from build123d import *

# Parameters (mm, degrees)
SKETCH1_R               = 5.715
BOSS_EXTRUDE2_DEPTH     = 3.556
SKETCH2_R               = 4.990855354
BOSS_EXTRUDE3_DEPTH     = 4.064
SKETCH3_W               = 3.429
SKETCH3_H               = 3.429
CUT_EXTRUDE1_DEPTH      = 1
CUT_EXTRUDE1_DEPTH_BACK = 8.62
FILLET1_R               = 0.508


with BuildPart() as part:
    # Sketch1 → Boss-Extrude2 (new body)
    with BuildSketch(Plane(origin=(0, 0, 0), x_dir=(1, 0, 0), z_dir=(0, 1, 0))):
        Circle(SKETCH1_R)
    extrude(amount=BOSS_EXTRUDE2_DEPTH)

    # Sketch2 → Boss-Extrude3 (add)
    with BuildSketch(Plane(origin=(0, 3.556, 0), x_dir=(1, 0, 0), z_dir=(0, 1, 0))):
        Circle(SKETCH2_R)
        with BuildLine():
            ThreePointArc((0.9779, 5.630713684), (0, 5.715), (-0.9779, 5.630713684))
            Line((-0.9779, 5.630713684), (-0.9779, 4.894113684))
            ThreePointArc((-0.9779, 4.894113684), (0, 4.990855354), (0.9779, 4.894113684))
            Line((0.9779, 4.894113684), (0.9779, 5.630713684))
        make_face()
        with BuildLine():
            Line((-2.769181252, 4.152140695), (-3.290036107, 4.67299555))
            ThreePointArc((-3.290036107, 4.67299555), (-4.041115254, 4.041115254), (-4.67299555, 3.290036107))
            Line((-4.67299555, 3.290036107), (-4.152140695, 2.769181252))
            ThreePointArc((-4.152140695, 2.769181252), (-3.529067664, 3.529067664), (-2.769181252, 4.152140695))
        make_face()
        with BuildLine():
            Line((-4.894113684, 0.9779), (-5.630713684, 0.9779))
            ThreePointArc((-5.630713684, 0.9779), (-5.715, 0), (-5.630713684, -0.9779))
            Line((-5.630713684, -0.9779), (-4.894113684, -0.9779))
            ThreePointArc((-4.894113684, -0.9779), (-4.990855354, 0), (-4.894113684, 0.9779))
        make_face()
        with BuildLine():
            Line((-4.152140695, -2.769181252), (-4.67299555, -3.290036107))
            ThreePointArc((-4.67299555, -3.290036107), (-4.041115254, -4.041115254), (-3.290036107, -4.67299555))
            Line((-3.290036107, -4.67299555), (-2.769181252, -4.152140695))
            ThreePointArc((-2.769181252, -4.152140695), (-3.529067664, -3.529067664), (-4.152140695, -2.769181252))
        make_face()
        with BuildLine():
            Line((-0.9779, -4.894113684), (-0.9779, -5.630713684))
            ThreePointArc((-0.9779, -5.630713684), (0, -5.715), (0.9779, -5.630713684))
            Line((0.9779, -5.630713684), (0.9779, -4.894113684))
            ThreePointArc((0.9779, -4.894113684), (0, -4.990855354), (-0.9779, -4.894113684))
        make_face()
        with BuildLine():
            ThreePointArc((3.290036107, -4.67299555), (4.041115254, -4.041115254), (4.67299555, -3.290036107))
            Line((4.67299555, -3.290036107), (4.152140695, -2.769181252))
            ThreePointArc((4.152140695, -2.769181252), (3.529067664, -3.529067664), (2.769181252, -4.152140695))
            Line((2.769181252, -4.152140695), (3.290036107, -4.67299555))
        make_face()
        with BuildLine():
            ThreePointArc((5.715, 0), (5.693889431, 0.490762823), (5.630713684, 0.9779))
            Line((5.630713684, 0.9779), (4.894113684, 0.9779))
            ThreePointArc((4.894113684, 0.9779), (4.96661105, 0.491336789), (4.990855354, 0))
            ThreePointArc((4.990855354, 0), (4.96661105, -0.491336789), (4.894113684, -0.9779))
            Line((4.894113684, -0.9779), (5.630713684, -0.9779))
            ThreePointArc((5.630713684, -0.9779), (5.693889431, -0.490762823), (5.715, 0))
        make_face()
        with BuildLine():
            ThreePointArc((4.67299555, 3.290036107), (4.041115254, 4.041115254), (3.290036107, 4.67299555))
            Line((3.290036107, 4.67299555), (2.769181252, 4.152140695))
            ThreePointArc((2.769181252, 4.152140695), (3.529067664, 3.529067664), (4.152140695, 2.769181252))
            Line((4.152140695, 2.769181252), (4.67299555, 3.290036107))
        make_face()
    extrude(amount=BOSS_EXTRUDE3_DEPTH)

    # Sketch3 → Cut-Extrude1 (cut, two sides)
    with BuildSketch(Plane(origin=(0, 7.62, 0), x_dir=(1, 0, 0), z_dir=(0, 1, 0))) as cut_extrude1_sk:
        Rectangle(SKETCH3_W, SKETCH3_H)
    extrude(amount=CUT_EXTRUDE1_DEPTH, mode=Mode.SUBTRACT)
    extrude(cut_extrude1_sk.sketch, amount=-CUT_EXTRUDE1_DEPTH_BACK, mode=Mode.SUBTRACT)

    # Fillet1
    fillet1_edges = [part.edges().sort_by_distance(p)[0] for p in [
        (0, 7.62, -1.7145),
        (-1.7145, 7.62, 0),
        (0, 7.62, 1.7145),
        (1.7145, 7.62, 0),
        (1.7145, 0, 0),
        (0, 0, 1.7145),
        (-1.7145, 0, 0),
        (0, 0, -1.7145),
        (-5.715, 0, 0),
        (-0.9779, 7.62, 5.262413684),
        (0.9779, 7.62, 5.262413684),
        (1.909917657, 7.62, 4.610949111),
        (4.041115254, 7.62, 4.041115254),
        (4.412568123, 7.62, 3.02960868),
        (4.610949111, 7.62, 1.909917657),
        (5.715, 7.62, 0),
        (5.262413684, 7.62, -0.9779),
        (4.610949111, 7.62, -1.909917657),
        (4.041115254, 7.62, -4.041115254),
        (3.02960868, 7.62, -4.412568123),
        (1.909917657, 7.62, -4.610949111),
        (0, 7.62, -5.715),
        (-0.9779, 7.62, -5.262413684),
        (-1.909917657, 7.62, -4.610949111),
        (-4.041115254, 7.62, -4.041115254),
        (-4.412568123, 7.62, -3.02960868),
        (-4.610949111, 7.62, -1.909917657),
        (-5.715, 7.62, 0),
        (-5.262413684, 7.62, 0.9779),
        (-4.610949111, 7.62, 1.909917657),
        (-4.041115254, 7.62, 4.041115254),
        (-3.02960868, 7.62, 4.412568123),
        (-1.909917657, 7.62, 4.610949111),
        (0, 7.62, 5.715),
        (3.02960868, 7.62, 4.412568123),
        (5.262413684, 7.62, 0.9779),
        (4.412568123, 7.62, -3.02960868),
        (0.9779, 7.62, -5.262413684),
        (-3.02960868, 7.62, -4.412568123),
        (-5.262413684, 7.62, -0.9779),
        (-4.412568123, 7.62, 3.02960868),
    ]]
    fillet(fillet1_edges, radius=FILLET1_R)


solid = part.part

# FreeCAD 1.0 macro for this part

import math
import FreeCAD as App
import Part
import Sketcher
from FreeCAD import Vector
Q = App.Units.Quantity


def edges_at(feature, points):
    """Names of the edges that pass closest to the given points."""
    edges = feature.Shape.Edges
    near = lambda p: min(range(len(edges)), key=lambda i: edges[i].distToShape(Part.Vertex(*p))[0])
    return sorted({f"Edge{near(p) + 1}" for p in points})

doc = App.newDocument("Part")
body = doc.addObject("PartDesign::Body", "Body")

sketch1 = doc.addObject("Sketcher::SketchObject", "Sketch")
body.addObject(sketch1)
sketch1.AttachmentSupport = (doc.XZ_Plane, [""])
sketch1.MapMode = "FlatFace"
sketch1.addGeometry(Part.Circle(Vector(0, 0, 0), Vector(0, 0, 1), 6), False)
sketch1.addConstraint([
    Sketcher.Constraint("Coincident", 0, 3, -1, 1),
    Sketcher.Constraint("Diameter", 0, Q("0.45 in")),
])
pad1 = doc.addObject("PartDesign::Pad", "Pad")
body.addObject(pad1)
pad1.Profile = sketch1
pad1.Length = Q("0.14 in")
pad1.Reversed = True

sketch2 = doc.addObject("Sketcher::SketchObject", "Sketch001")
body.addObject(sketch2)
sketch2.AttachmentSupport = (doc.XZ_Plane, [""])
sketch2.MapMode = "FlatFace"
sketch2.AttachmentOffset = App.Placement(Vector(0, 0, -0.14 * 25.4), App.Rotation())
sketch2.addGeometry([
    Part.LineSegment(Vector(1, -4.9, 0), Vector(1, -5.6, 0)),
    Part.ArcOfCircle(Part.Circle(Vector(0, 0, 0), Vector(0, 0, 1), 5.7), math.radians(-99.85), math.radians(-80.15)),
    Part.LineSegment(Vector(-1, -5.6, 0), Vector(-1, -4.9, 0)),
    Part.ArcOfCircle(Part.Circle(Vector(0, 0, 0), Vector(0, 0, 1), 5), math.radians(-124), math.radians(-101)),
    Part.LineSegment(Vector(-2.8, -4.2, 0), Vector(-3.3, -4.7, 0)),
    Part.ArcOfCircle(Part.Circle(Vector(0, 0, 0), Vector(0, 0, 1), 5.7), math.radians(-144.85), math.radians(-125.15)),
    Part.LineSegment(Vector(-4.7, -3.3, 0), Vector(-4.2, -2.8, 0)),
    Part.ArcOfCircle(Part.Circle(Vector(0, 0, 0), Vector(0, 0, 1), 5), math.radians(-169), math.radians(-146)),
    Part.LineSegment(Vector(-4.9, -1, 0), Vector(-5.6, -1, 0)),
    Part.ArcOfCircle(Part.Circle(Vector(0, 0, 0), Vector(0, 0, 1), 5.7), math.radians(170.15), math.radians(189.85)),
    Part.LineSegment(Vector(-5.6, 1, 0), Vector(-4.9, 1, 0)),
    Part.ArcOfCircle(Part.Circle(Vector(0, 0, 0), Vector(0, 0, 1), 5), math.radians(146), math.radians(169)),
    Part.LineSegment(Vector(-4.2, 2.8, 0), Vector(-4.7, 3.3, 0)),
    Part.ArcOfCircle(Part.Circle(Vector(0, 0, 0), Vector(0, 0, 1), 5.7), math.radians(125.15), math.radians(144.85)),
    Part.LineSegment(Vector(-3.3, 4.7, 0), Vector(-2.8, 4.2, 0)),
    Part.ArcOfCircle(Part.Circle(Vector(0, 0, 0), Vector(0, 0, 1), 5), math.radians(101), math.radians(124)),
    Part.LineSegment(Vector(-1, 4.9, 0), Vector(-1, 5.6, 0)),
    Part.ArcOfCircle(Part.Circle(Vector(0, 0, 0), Vector(0, 0, 1), 5.7), math.radians(80.15), math.radians(99.85)),
    Part.LineSegment(Vector(1, 5.6, 0), Vector(1, 4.9, 0)),
    Part.ArcOfCircle(Part.Circle(Vector(0, 0, 0), Vector(0, 0, 1), 5), math.radians(56), math.radians(79)),
    Part.LineSegment(Vector(2.8, 4.2, 0), Vector(3.3, 4.7, 0)),
    Part.ArcOfCircle(Part.Circle(Vector(0, 0, 0), Vector(0, 0, 1), 5.7), math.radians(35.15), math.radians(54.85)),
    Part.LineSegment(Vector(4.7, 3.3, 0), Vector(4.2, 2.8, 0)),
    Part.ArcOfCircle(Part.Circle(Vector(0, 0, 0), Vector(0, 0, 1), 5), math.radians(11), math.radians(34)),
    Part.LineSegment(Vector(4.9, 1, 0), Vector(5.6, 1, 0)),
    Part.ArcOfCircle(Part.Circle(Vector(0, 0, 0), Vector(0, 0, 1), 5.7), math.radians(0), math.radians(9.85)),
    Part.ArcOfCircle(Part.Circle(Vector(0, 0, 0), Vector(0, 0, 1), 5.7), math.radians(-9.85), math.radians(0)),
    Part.LineSegment(Vector(5.6, -1, 0), Vector(4.9, -1, 0)),
    Part.ArcOfCircle(Part.Circle(Vector(0, 0, 0), Vector(0, 0, 1), 5), math.radians(-34), math.radians(-11)),
    Part.LineSegment(Vector(4.2, -2.8, 0), Vector(4.7, -3.3, 0)),
    Part.ArcOfCircle(Part.Circle(Vector(0, 0, 0), Vector(0, 0, 1), 5.7), math.radians(-54.85), math.radians(-35.15)),
    Part.LineSegment(Vector(3.3, -4.7, 0), Vector(2.8, -4.2, 0)),
    Part.ArcOfCircle(Part.Circle(Vector(0, 0, 0), Vector(0, 0, 1), 5), math.radians(-79), math.radians(-56)),
], False)
sketch2.addConstraint([
    Sketcher.Constraint("Coincident", 0, 2, 1, 2),
    Sketcher.Constraint("Coincident", 1, 1, 2, 1),
    Sketcher.Constraint("Coincident", 2, 2, 3, 2),
    Sketcher.Constraint("Coincident", 3, 1, 4, 1),
    Sketcher.Constraint("Coincident", 4, 2, 5, 2),
    Sketcher.Constraint("Coincident", 5, 1, 6, 1),
    Sketcher.Constraint("Coincident", 6, 2, 7, 2),
    Sketcher.Constraint("Coincident", 7, 1, 8, 1),
    Sketcher.Constraint("Coincident", 8, 2, 9, 2),
    Sketcher.Constraint("Coincident", 9, 1, 10, 1),
    Sketcher.Constraint("Coincident", 10, 2, 11, 2),
    Sketcher.Constraint("Coincident", 11, 1, 12, 1),
    Sketcher.Constraint("Coincident", 12, 2, 13, 2),
    Sketcher.Constraint("Coincident", 13, 1, 14, 1),
    Sketcher.Constraint("Coincident", 14, 2, 15, 2),
    Sketcher.Constraint("Coincident", 15, 1, 16, 1),
    Sketcher.Constraint("Coincident", 16, 2, 17, 2),
    Sketcher.Constraint("Coincident", 17, 1, 18, 1),
    Sketcher.Constraint("Coincident", 18, 2, 19, 2),
    Sketcher.Constraint("Coincident", 19, 1, 20, 1),
    Sketcher.Constraint("Coincident", 20, 2, 21, 2),
    Sketcher.Constraint("Coincident", 21, 1, 22, 1),
    Sketcher.Constraint("Coincident", 22, 2, 23, 2),
    Sketcher.Constraint("Coincident", 23, 1, 24, 1),
    Sketcher.Constraint("Coincident", 24, 2, 25, 2),
    Sketcher.Constraint("Tangent", 25, 1, 26, 2),
    Sketcher.Constraint("Coincident", 26, 1, 27, 1),
    Sketcher.Constraint("Coincident", 27, 2, 28, 2),
    Sketcher.Constraint("Coincident", 28, 1, 29, 1),
    Sketcher.Constraint("Coincident", 29, 2, 30, 2),
    Sketcher.Constraint("Coincident", 30, 1, 31, 1),
    Sketcher.Constraint("Coincident", 31, 2, 32, 2),
    Sketcher.Constraint("Coincident", 32, 1, 0, 1),
    Sketcher.Constraint("Vertical", 0),
    Sketcher.Constraint("Vertical", 2),
    Sketcher.Constraint("Horizontal", 8),
    Sketcher.Constraint("Horizontal", 10),
    Sketcher.Constraint("Vertical", 16),
    Sketcher.Constraint("Vertical", 18),
    Sketcher.Constraint("Horizontal", 24),
    Sketcher.Constraint("Horizontal", 27),
    Sketcher.Constraint("Coincident", 1, 3, -1, 1),
    Sketcher.Constraint("Coincident", 3, 3, -1, 1),
    Sketcher.Constraint("Coincident", 5, 3, -1, 1),
    Sketcher.Constraint("Coincident", 7, 3, -1, 1),
    Sketcher.Constraint("Coincident", 9, 3, -1, 1),
    Sketcher.Constraint("Coincident", 11, 3, -1, 1),
    Sketcher.Constraint("Coincident", 13, 3, -1, 1),
    Sketcher.Constraint("Coincident", 15, 3, -1, 1),
    Sketcher.Constraint("Coincident", 17, 3, -1, 1),
    Sketcher.Constraint("Coincident", 19, 3, -1, 1),
    Sketcher.Constraint("Coincident", 21, 3, -1, 1),
    Sketcher.Constraint("Coincident", 23, 3, -1, 1),
    Sketcher.Constraint("Coincident", 25, 3, -1, 1),
    Sketcher.Constraint("Coincident", 28, 3, -1, 1),
    Sketcher.Constraint("Coincident", 30, 3, -1, 1),
    Sketcher.Constraint("Coincident", 32, 3, -1, 1),
    Sketcher.Constraint("Equal", 1, 5),
    Sketcher.Constraint("Equal", 3, 7),
    Sketcher.Constraint("Equal", 5, 9),
    Sketcher.Constraint("Equal", 7, 11),
    Sketcher.Constraint("Equal", 9, 13),
    Sketcher.Constraint("Equal", 11, 15),
    Sketcher.Constraint("Equal", 13, 17),
    Sketcher.Constraint("Equal", 15, 19),
    Sketcher.Constraint("Equal", 17, 21),
    Sketcher.Constraint("Equal", 19, 23),
    Sketcher.Constraint("Equal", 21, 25),
    Sketcher.Constraint("Equal", 25, 26),
    Sketcher.Constraint("Equal", 23, 28),
    Sketcher.Constraint("Equal", 26, 30),
    Sketcher.Constraint("Equal", 28, 32),
    Sketcher.Constraint("PointOnObject", 25, 1, -1),
    Sketcher.Constraint("Parallel", 4, 6),
    Sketcher.Constraint("Perpendicular", 6, 12),
    Sketcher.Constraint("Parallel", 12, 14),
    Sketcher.Constraint("Perpendicular", 14, 20),
    Sketcher.Constraint("Parallel", 20, 22),
    Sketcher.Constraint("Perpendicular", 22, 29),
    Sketcher.Constraint("Parallel", 29, 31),
    Sketcher.Constraint("Horizontal", 0, 2, 1, 1),
    Sketcher.Constraint("Horizontal", 16, 2, 17, 1),
    Sketcher.Constraint("Horizontal", 14, 2, 19, 1),
    Sketcher.Constraint("Horizontal", 13, 1, 20, 2),
    Sketcher.Constraint("Horizontal", 12, 2, 21, 1),
    Sketcher.Constraint("Horizontal", 10, 2, 23, 1),
    Sketcher.Constraint("Horizontal", 8, 2, 26, 1),
    Sketcher.Constraint("Horizontal", 6, 2, 28, 1),
    Sketcher.Constraint("Horizontal", 4, 2, 30, 1),
    Sketcher.Constraint("Vertical", 8, 2, 9, 1),
    Sketcher.Constraint("Vertical", 6, 2, 11, 1),
    Sketcher.Constraint("Vertical", 4, 2, 13, 1),
    Sketcher.Constraint("Vertical", 2, 2, 15, 1),
    Sketcher.Constraint("Equal", 27, 0),
    Sketcher.Constraint("Equal", 4, 6),
    Sketcher.Constraint("Radius", 1, Q("0.225 in")),
    Sketcher.Constraint("DistanceX", 8, 2, 8, 1, Q("0.029 in")),
    Sketcher.Constraint("Distance", 4, Q("0.029 in")),
    Sketcher.Constraint("DistanceX", 1, 1, 0, 2, Q("0.077 in")),
])
pad2 = doc.addObject("PartDesign::Pad", "Pad001")
body.addObject(pad2)
pad2.Profile = sketch2
pad2.Length = Q("0.16 in")
pad2.Reversed = True

sketch3 = doc.addObject("Sketcher::SketchObject", "Sketch002")
body.addObject(sketch3)
sketch3.AttachmentSupport = (doc.XZ_Plane, [""])
sketch3.MapMode = "FlatFace"
sketch3.AttachmentOffset = App.Placement(Vector(0, 0, -0.3 * 25.4), App.Rotation())
sketch3.addGeometry([
    Part.LineSegment(Vector(-1.7, -1.7, 0), Vector(-1.7, 1.7, 0)),
    Part.LineSegment(Vector(-1.7, 1.7, 0), Vector(1.7, 1.7, 0)),
    Part.LineSegment(Vector(1.7, 1.7, 0), Vector(1.7, -1.7, 0)),
    Part.LineSegment(Vector(1.7, -1.7, 0), Vector(-1.7, -1.7, 0)),
], False)
sketch3.addConstraint([
    Sketcher.Constraint("Coincident", 0, 2, 1, 1),
    Sketcher.Constraint("Coincident", 1, 2, 2, 1),
    Sketcher.Constraint("Coincident", 2, 2, 3, 1),
    Sketcher.Constraint("Coincident", 3, 2, 0, 1),
    Sketcher.Constraint("Vertical", 0),
    Sketcher.Constraint("Horizontal", 1),
    Sketcher.Constraint("Vertical", 2),
    Sketcher.Constraint("Horizontal", 3),
    Sketcher.Constraint("Symmetric", 0, 2, 2, 2, -1, 1),
    Sketcher.Constraint("Equal", 3, 0),
    Sketcher.Constraint("DistanceX", 1, 1, 1, 2, Q("0.135 in")),
])
pocket1 = doc.addObject("PartDesign::Pocket", "Pocket")
body.addObject(pocket1)
pocket1.Profile = sketch3
pocket1.Type = "ThroughAll"
pocket1.Midplane = True
doc.recompute()

fillet = doc.addObject("PartDesign::Fillet", "Fillet")
body.addObject(fillet)
fillet.Base = (pocket1, edges_at(pocket1, [
    (0, 7.62, -1.714),
    (-1.714, 7.62, 0),
    (0, 7.62, 1.714),
    (1.714, 7.62, 0),
    (1.714, 0, 0),
    (0, 0, 1.714),
    (-1.714, 0, 0),
    (0, 0, -1.714),
    (-5.715, 0, 0),
    (-0.978, 7.62, 5.262),
    (0.978, 7.62, 5.262),
    (1.91, 7.62, 4.611),
    (4.041, 7.62, 4.041),
    (4.413, 7.62, 3.03),
    (4.611, 7.62, 1.91),
    (5.694, 7.62, -0.491),
    (5.262, 7.62, -0.978),
    (4.611, 7.62, -1.91),
    (4.041, 7.62, -4.041),
    (3.03, 7.62, -4.413),
    (1.91, 7.62, -4.611),
    (0, 7.62, -5.715),
    (-0.978, 7.62, -5.262),
    (-1.91, 7.62, -4.611),
    (-4.041, 7.62, -4.041),
    (-4.413, 7.62, -3.03),
    (-4.611, 7.62, -1.91),
    (-5.715, 7.62, 0),
    (-5.262, 7.62, 0.978),
    (-4.611, 7.62, 1.91),
    (-4.041, 7.62, 4.041),
    (-3.03, 7.62, 4.413),
    (-1.91, 7.62, 4.611),
    (0, 7.62, 5.715),
    (3.03, 7.62, 4.413),
    (5.262, 7.62, 0.978),
    (4.413, 7.62, -3.03),
    (0.978, 7.62, -5.262),
    (-3.03, 7.62, -4.413),
    (-5.262, 7.62, -0.978),
    (-4.413, 7.62, 3.03),
]))
fillet.Radius = Q("0.02 in")

doc.recompute()
